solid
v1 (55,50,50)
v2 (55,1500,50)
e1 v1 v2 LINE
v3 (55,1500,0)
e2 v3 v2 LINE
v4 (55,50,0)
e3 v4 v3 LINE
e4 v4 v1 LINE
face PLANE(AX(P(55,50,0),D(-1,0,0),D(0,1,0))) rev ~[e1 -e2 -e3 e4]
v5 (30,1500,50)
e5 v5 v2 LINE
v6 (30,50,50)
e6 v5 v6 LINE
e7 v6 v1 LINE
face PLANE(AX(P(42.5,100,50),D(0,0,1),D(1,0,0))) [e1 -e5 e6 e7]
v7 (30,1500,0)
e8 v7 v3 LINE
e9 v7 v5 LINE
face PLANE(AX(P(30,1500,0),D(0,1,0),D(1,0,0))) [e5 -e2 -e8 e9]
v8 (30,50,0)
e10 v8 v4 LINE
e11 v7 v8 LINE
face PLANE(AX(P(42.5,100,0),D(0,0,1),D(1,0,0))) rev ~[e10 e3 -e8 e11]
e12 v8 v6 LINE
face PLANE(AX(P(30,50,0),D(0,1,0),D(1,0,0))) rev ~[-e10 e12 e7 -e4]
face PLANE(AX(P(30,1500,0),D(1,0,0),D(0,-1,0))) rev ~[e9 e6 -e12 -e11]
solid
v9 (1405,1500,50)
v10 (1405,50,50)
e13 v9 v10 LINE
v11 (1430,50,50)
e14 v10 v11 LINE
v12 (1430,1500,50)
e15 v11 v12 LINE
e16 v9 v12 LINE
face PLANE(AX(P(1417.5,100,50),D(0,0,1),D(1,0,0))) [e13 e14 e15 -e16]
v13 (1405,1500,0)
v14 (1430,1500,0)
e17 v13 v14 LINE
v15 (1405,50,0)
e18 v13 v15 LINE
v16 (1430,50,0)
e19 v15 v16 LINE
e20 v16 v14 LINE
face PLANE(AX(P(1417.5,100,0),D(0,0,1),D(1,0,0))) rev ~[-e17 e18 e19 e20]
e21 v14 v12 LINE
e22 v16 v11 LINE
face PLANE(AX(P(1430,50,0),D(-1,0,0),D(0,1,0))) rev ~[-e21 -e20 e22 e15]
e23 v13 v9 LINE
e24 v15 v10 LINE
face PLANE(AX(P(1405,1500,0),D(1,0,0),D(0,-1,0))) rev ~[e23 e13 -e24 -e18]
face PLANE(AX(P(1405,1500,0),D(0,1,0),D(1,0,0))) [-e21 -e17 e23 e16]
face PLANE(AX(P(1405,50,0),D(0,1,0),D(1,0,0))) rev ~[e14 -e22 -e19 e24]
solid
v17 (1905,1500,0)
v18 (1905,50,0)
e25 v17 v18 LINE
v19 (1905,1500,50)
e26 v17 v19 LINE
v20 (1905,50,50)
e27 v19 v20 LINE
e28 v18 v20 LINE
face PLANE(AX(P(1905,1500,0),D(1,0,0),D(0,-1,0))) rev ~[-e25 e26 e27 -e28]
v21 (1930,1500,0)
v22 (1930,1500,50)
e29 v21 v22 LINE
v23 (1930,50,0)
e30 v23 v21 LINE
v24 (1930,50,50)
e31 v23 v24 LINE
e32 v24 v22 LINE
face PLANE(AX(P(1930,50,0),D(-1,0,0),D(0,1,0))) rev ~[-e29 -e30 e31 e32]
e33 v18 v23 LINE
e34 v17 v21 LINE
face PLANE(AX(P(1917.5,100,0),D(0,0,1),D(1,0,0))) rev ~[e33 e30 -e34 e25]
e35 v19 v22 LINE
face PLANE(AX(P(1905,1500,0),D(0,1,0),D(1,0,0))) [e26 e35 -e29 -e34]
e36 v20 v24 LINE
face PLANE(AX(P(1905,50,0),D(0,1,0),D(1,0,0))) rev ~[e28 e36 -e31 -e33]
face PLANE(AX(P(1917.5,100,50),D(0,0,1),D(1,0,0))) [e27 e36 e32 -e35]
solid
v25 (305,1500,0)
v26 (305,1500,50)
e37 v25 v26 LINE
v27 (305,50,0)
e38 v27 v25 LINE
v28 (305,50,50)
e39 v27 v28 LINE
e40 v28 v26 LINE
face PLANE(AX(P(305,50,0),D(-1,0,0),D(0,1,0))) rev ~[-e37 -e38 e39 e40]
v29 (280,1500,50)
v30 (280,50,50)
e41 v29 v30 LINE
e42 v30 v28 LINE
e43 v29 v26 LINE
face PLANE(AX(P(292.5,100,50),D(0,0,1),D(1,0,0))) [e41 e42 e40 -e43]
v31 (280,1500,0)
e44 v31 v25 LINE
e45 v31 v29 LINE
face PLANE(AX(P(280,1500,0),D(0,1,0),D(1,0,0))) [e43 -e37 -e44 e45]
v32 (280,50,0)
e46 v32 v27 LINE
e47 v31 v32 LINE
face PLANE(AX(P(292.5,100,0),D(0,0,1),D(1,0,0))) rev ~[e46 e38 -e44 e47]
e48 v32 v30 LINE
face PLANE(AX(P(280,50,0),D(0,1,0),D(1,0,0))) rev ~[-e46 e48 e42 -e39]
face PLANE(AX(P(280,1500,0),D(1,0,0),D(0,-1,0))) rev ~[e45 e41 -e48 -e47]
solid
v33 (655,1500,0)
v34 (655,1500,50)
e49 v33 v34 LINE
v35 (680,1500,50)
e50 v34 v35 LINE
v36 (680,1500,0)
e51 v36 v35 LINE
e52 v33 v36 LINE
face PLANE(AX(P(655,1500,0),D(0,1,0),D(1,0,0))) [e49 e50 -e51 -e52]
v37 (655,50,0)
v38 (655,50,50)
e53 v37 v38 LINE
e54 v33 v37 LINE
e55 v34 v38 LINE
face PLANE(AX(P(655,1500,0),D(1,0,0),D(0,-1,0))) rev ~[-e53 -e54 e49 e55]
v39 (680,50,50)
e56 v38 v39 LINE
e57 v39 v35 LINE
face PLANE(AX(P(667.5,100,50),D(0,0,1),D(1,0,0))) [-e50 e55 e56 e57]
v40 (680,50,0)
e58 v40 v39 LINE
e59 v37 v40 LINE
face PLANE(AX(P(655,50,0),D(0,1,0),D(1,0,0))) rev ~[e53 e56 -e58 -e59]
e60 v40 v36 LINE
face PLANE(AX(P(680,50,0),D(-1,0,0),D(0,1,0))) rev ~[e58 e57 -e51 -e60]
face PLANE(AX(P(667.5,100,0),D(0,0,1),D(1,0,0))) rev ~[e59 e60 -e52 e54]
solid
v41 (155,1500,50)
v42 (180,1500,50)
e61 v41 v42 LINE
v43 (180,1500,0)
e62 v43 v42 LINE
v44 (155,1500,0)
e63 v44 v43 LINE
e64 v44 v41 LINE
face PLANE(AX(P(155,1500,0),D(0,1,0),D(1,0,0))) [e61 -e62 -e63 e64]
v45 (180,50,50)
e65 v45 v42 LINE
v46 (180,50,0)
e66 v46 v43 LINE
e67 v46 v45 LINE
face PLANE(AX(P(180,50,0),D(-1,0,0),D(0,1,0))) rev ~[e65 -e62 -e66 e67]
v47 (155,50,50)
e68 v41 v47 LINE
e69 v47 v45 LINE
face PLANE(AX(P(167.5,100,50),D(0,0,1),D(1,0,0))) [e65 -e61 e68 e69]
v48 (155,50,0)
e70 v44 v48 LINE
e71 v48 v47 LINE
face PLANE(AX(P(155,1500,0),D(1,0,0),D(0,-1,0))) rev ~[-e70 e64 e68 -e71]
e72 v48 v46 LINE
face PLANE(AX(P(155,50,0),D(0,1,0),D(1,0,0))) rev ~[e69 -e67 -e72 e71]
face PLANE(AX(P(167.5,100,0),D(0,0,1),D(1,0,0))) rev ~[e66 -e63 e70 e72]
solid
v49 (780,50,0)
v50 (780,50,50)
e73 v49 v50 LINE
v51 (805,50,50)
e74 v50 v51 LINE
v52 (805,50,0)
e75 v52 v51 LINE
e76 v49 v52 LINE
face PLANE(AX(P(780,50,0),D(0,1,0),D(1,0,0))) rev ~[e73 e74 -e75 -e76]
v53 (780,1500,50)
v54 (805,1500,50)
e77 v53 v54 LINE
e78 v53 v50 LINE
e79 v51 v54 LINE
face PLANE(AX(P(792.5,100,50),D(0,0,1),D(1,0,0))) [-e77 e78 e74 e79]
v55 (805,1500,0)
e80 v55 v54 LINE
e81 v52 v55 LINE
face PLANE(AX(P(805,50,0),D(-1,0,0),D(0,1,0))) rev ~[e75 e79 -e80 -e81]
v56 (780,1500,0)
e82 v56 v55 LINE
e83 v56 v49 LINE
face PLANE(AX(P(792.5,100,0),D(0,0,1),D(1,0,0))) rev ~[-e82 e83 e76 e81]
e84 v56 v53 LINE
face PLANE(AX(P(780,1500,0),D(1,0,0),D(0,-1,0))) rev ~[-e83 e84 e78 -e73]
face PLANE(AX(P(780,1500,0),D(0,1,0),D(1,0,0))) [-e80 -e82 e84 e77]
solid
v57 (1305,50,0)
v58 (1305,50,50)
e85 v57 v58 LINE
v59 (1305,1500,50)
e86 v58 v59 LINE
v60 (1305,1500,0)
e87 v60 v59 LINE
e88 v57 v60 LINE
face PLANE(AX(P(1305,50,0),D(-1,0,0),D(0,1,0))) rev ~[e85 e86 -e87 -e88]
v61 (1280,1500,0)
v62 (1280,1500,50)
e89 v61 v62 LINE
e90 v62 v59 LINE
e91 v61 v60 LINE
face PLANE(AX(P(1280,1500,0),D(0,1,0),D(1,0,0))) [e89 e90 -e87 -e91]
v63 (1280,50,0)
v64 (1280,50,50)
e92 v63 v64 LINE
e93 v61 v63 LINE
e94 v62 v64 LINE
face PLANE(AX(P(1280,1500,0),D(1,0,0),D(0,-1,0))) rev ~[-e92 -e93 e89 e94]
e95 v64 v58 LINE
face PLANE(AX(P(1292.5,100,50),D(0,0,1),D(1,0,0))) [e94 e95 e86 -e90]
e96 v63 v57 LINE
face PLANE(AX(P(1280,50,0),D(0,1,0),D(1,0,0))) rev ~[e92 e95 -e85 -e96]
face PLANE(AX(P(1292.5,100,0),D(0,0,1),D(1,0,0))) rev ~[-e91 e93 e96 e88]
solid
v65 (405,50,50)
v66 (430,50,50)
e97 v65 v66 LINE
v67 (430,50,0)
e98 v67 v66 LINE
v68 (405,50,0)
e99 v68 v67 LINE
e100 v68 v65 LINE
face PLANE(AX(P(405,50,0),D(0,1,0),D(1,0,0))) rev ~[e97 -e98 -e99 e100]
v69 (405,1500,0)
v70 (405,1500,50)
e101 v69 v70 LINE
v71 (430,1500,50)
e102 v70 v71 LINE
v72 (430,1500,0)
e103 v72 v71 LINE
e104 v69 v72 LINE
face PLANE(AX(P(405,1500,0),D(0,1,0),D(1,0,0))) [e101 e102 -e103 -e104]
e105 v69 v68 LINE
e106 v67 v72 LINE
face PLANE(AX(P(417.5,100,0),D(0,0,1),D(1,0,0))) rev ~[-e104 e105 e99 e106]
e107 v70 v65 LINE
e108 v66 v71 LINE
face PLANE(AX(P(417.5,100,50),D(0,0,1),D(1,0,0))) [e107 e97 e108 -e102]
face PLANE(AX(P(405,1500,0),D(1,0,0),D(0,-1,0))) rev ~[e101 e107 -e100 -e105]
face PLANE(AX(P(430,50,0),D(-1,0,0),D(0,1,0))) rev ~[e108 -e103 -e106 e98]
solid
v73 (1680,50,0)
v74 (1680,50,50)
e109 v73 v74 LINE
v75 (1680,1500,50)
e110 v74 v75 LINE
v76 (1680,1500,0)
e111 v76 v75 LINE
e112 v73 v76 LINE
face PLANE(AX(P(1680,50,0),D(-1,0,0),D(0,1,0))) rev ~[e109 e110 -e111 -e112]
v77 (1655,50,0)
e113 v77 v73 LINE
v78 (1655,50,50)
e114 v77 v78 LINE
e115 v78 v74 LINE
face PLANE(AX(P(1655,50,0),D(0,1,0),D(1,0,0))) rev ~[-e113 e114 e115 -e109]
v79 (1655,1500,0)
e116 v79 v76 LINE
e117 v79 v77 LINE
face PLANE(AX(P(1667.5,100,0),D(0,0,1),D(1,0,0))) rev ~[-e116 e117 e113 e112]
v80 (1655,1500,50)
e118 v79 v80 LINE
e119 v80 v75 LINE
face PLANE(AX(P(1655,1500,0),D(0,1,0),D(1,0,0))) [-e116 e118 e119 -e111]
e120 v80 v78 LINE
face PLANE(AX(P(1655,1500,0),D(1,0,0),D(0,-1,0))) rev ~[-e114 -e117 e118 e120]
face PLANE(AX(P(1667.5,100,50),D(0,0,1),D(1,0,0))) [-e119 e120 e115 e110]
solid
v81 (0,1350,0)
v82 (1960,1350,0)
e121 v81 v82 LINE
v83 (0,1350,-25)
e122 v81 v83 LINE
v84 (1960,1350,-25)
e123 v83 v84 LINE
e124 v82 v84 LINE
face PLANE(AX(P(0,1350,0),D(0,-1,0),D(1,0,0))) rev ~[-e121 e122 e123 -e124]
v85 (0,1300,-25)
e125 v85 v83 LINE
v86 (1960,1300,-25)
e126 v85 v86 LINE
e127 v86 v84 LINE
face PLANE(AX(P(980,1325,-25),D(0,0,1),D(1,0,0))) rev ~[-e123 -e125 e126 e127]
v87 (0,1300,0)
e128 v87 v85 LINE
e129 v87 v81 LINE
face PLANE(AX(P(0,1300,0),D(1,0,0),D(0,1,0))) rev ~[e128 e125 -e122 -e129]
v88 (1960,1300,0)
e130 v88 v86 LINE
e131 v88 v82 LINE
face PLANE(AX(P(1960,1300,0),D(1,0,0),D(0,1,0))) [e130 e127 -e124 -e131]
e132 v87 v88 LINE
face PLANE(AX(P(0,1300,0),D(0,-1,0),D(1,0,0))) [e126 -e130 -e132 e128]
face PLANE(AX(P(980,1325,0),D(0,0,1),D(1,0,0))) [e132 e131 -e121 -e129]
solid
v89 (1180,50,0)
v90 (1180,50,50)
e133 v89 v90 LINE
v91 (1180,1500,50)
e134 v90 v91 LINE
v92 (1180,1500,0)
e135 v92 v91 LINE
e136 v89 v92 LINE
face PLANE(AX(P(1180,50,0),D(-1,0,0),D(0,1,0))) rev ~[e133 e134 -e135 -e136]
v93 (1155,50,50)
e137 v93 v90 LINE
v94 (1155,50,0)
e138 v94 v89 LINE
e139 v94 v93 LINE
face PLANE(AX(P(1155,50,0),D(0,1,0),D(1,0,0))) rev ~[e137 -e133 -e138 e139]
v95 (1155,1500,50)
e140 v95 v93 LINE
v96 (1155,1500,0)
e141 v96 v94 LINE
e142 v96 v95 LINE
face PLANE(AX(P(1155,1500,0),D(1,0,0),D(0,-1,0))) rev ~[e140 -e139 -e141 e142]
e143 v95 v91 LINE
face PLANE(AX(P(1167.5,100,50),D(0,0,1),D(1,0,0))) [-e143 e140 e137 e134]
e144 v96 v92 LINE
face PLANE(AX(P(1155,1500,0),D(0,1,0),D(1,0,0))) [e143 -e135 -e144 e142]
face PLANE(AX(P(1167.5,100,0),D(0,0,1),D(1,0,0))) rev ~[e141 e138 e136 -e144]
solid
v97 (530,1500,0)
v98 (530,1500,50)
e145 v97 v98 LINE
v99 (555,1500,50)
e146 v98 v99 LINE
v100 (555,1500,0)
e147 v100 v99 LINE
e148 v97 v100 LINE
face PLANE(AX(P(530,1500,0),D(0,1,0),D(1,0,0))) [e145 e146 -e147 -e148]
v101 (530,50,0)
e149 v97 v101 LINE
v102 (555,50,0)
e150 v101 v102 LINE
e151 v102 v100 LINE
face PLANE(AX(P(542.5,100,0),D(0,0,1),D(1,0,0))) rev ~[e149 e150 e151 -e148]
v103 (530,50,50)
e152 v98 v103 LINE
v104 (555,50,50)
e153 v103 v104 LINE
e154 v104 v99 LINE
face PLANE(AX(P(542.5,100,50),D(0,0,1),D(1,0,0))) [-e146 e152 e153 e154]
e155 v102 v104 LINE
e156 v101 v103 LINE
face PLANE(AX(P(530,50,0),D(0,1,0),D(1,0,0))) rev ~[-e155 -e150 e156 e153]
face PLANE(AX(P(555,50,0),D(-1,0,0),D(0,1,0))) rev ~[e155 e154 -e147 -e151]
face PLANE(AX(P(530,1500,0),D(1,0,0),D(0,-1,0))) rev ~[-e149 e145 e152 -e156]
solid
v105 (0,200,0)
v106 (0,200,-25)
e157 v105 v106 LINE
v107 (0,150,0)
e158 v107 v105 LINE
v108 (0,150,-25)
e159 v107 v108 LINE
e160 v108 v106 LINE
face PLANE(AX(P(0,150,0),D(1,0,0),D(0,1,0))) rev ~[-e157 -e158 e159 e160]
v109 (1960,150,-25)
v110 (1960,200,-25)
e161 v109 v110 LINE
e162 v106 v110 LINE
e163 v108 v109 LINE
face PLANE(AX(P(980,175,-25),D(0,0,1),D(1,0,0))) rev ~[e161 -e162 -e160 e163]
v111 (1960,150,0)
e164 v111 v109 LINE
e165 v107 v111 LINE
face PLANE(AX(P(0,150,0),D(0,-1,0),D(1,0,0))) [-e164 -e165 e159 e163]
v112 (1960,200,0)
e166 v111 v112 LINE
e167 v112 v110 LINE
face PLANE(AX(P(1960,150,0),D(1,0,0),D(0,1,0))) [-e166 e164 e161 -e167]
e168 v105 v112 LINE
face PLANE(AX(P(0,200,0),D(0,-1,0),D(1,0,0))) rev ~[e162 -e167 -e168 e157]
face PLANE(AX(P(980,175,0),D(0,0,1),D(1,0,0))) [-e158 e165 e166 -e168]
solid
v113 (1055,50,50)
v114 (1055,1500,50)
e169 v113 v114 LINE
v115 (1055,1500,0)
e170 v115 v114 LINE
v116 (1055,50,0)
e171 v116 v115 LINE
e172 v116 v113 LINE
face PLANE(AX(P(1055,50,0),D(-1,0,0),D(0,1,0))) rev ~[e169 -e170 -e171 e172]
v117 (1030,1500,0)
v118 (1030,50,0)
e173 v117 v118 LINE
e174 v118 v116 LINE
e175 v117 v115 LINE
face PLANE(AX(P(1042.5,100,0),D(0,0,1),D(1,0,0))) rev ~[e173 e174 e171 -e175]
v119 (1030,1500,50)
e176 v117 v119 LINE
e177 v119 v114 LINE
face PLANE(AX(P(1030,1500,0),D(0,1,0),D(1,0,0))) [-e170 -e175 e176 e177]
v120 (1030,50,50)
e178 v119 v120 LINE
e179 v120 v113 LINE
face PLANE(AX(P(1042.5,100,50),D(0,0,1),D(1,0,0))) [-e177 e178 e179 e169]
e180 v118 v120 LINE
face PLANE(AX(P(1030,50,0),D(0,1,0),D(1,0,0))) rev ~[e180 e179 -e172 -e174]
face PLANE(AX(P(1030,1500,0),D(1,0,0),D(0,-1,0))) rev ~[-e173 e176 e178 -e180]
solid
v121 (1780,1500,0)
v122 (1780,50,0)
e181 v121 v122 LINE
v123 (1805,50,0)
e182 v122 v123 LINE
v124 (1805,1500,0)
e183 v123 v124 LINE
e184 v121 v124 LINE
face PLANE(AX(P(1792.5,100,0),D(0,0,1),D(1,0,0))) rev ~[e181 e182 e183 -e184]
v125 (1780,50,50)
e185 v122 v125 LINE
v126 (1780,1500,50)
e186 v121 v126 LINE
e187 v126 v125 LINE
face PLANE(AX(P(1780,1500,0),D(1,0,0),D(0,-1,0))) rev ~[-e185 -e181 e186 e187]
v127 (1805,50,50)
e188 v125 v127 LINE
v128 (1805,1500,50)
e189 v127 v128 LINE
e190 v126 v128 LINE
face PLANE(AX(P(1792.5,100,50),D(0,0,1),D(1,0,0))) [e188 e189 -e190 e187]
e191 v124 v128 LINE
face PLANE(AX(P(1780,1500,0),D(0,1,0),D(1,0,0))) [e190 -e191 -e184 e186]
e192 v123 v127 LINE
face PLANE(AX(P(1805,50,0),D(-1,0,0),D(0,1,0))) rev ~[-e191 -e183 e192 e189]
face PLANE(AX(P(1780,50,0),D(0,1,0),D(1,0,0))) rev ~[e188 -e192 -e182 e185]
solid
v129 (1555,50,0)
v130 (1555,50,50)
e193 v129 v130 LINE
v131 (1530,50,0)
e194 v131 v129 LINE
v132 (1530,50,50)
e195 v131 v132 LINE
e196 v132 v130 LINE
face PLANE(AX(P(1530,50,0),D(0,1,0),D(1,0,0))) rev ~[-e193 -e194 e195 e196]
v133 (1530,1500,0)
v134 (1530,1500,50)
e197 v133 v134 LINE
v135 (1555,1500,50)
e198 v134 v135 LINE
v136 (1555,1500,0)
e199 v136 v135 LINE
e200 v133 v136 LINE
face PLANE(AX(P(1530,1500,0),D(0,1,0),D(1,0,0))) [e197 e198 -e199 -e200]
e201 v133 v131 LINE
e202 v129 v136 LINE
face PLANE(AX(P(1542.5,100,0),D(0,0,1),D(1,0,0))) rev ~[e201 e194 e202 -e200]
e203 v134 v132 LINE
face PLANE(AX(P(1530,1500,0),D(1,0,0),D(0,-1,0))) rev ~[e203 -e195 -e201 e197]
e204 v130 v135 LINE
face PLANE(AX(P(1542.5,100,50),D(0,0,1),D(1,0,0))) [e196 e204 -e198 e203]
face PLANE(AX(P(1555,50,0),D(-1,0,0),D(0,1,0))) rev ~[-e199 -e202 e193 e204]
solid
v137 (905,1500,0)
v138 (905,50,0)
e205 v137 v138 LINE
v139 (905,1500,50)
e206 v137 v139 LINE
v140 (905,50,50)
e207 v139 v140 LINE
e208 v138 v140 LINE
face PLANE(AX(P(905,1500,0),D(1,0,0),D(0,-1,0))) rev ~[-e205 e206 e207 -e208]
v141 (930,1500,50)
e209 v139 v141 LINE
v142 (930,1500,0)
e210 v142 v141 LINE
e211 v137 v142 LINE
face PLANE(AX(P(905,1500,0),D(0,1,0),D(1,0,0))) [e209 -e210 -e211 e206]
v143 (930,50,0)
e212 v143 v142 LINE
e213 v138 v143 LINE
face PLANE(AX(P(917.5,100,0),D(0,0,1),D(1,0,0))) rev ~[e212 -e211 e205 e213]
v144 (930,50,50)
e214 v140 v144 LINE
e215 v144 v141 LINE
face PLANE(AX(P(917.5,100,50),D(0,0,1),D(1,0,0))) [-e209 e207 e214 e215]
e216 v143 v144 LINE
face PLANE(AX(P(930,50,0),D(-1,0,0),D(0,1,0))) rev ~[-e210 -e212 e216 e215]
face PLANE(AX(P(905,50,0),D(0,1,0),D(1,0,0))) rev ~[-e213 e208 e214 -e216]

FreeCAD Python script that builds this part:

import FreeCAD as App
import Part
import Sketcher

V = App.Vector

doc = App.newDocument("Part")
body = doc.addObject("PartDesign::Body", "Body")

# Sketch on XY plane
sketch1 = doc.addObject("Sketcher::SketchObject", "Sketch")
body.addObject(sketch1)
sketch1.AttachmentSupport = (doc.XY_Plane, [""])
sketch1.MapMode = "FlatFace"
sketch1.addGeometry([
    Part.LineSegment(V(30, 50, 0), V(55, 50, 0)),
    Part.LineSegment(V(55, 50, 0), V(55, 1500, 0)),
    Part.LineSegment(V(55, 1500, 0), V(30, 1500, 0)),
    Part.LineSegment(V(30, 1500, 0), V(30, 50, 0)),
], False)
sketch1.addConstraint([
    Sketcher.Constraint("Coincident", 0, 2, 1, 1),
    Sketcher.Constraint("Coincident", 1, 2, 2, 1),
    Sketcher.Constraint("Coincident", 2, 2, 3, 1),
    Sketcher.Constraint("Coincident", 3, 2, 0, 1),
    Sketcher.Constraint("Horizontal", 0),
    Sketcher.Constraint("Vertical", 1),
    Sketcher.Constraint("Horizontal", 2),
    Sketcher.Constraint("Vertical", 3),
    Sketcher.Constraint("DistanceX", 0, 1, 0, 2, 25.0),
    Sketcher.Constraint("DistanceY", 1, 1, 1, 2, 1450.0),
    Sketcher.Constraint("DistanceX", -1, 1, 0, 2, 55.0),
    Sketcher.Constraint("DistanceY", -1, 1, 0, 2, 50.0),
])
pad1 = doc.addObject("PartDesign::Pad", "Pad")
body.addObject(pad1)
pad1.Profile = sketch1
pad1.Length = 50
body2 = doc.addObject("PartDesign::Body", "Body001")

# Sketch on XY plane
sketch2 = doc.addObject("Sketcher::SketchObject", "Sketch001")
body2.addObject(sketch2)
sketch2.AttachmentSupport = (doc.getObject("XY_Plane001"), [""])
sketch2.MapMode = "FlatFace"
sketch2.addGeometry([
    Part.LineSegment(V(155, 50, 0), V(180, 50, 0)),
    Part.LineSegment(V(180, 50, 0), V(180, 1500, 0)),
    Part.LineSegment(V(180, 1500, 0), V(155, 1500, 0)),
    Part.LineSegment(V(155, 1500, 0), V(155, 50, 0)),
], False)
sketch2.addConstraint([
    Sketcher.Constraint("Coincident", 0, 2, 1, 1),
    Sketcher.Constraint("Coincident", 1, 2, 2, 1),
    Sketcher.Constraint("Coincident", 2, 2, 3, 1),
    Sketcher.Constraint("Coincident", 3, 2, 0, 1),
    Sketcher.Constraint("Horizontal", 0),
    Sketcher.Constraint("Vertical", 1),
    Sketcher.Constraint("Horizontal", 2),
    Sketcher.Constraint("Vertical", 3),
    Sketcher.Constraint("DistanceX", 0, 1, 0, 2, 25.0),
    Sketcher.Constraint("DistanceY", 1, 1, 1, 2, 1450.0),
    Sketcher.Constraint("DistanceX", -1, 1, 0, 2, 180.0),
    Sketcher.Constraint("DistanceY", -1, 1, 0, 2, 50.0),
])
pad2 = doc.addObject("PartDesign::Pad", "Pad001")
body2.addObject(pad2)
pad2.Profile = sketch2
pad2.Length = 50
body3 = doc.addObject("PartDesign::Body", "Body002")

# Sketch on XY plane
sketch3 = doc.addObject("Sketcher::SketchObject", "Sketch002")
body3.addObject(sketch3)
sketch3.AttachmentSupport = (doc.getObject("XY_Plane002"), [""])
sketch3.MapMode = "FlatFace"
sketch3.addGeometry([
    Part.LineSegment(V(280, 50, 0), V(305, 50, 0)),
    Part.LineSegment(V(305, 50, 0), V(305, 1500, 0)),
    Part.LineSegment(V(305, 1500, 0), V(280, 1500, 0)),
    Part.LineSegment(V(280, 1500, 0), V(280, 50, 0)),
], False)
sketch3.addConstraint([
    Sketcher.Constraint("Coincident", 0, 2, 1, 1),
    Sketcher.Constraint("Coincident", 1, 2, 2, 1),
    Sketcher.Constraint("Coincident", 2, 2, 3, 1),
    Sketcher.Constraint("Coincident", 3, 2, 0, 1),
    Sketcher.Constraint("Horizontal", 0),
    Sketcher.Constraint("Vertical", 1),
    Sketcher.Constraint("Horizontal", 2),
    Sketcher.Constraint("Vertical", 3),
    Sketcher.Constraint("DistanceX", 0, 1, 0, 2, 25.0),
    Sketcher.Constraint("DistanceY", 1, 1, 1, 2, 1450.0),
    Sketcher.Constraint("DistanceX", -1, 1, 0, 2, 305.0),
    Sketcher.Constraint("DistanceY", -1, 1, 0, 2, 50.0),
])
pad3 = doc.addObject("PartDesign::Pad", "Pad002")
body3.addObject(pad3)
pad3.Profile = sketch3
pad3.Length = 50
body4 = doc.addObject("PartDesign::Body", "Body003")

# Sketch on XY plane
sketch4 = doc.addObject("Sketcher::SketchObject", "Sketch003")
body4.addObject(sketch4)
sketch4.AttachmentSupport = (doc.getObject("XY_Plane003"), [""])
sketch4.MapMode = "FlatFace"
sketch4.addGeometry([
    Part.LineSegment(V(405, 50, 0), V(430, 50, 0)),
    Part.LineSegment(V(430, 50, 0), V(430, 1500, 0)),
    Part.LineSegment(V(430, 1500, 0), V(405, 1500, 0)),
    Part.LineSegment(V(405, 1500, 0), V(405, 50, 0)),
], False)
sketch4.addConstraint([
    Sketcher.Constraint("Coincident", 0, 2, 1, 1),
    Sketcher.Constraint("Coincident", 1, 2, 2, 1),
    Sketcher.Constraint("Coincident", 2, 2, 3, 1),
    Sketcher.Constraint("Coincident", 3, 2, 0, 1),
    Sketcher.Constraint("Horizontal", 0),
    Sketcher.Constraint("Vertical", 1),
    Sketcher.Constraint("Horizontal", 2),
    Sketcher.Constraint("Vertical", 3),
    Sketcher.Constraint("DistanceX", 0, 1, 0, 2, 25.0),
    Sketcher.Constraint("DistanceY", 1, 1, 1, 2, 1450.0),
    Sketcher.Constraint("DistanceX", -1, 1, 0, 2, 430.0),
    Sketcher.Constraint("DistanceY", -1, 1, 0, 2, 50.0),
])
pad4 = doc.addObject("PartDesign::Pad", "Pad003")
body4.addObject(pad4)
pad4.Profile = sketch4
pad4.Length = 50
body5 = doc.addObject("PartDesign::Body", "Body004")

# Sketch on XY plane
sketch5 = doc.addObject("Sketcher::SketchObject", "Sketch004")
body5.addObject(sketch5)
sketch5.AttachmentSupport = (doc.getObject("XY_Plane004"), [""])
sketch5.MapMode = "FlatFace"
sketch5.addGeometry([
    Part.LineSegment(V(530, 50, 0), V(555, 50, 0)),
    Part.LineSegment(V(555, 50, 0), V(555, 1500, 0)),
    Part.LineSegment(V(555, 1500, 0), V(530, 1500, 0)),
    Part.LineSegment(V(530, 1500, 0), V(530, 50, 0)),
], False)
sketch5.addConstraint([
    Sketcher.Constraint("Coincident", 0, 2, 1, 1),
    Sketcher.Constraint("Coincident", 1, 2, 2, 1),
    Sketcher.Constraint("Coincident", 2, 2, 3, 1),
    Sketcher.Constraint("Coincident", 3, 2, 0, 1),
    Sketcher.Constraint("Horizontal", 0),
    Sketcher.Constraint("Vertical", 1),
    Sketcher.Constraint("Horizontal", 2),
    Sketcher.Constraint("Vertical", 3),
    Sketcher.Constraint("DistanceX", 0, 1, 0, 2, 25.0),
    Sketcher.Constraint("DistanceY", 1, 1, 1, 2, 1450.0),
    Sketcher.Constraint("DistanceX", -1, 1, 0, 2, 555.0),
    Sketcher.Constraint("DistanceY", -1, 1, 0, 2, 50.0),
])
pad5 = doc.addObject("PartDesign::Pad", "Pad004")
body5.addObject(pad5)
pad5.Profile = sketch5
pad5.Length = 50
body6 = doc.addObject("PartDesign::Body", "Body005")

# Sketch on XY plane
sketch6 = doc.addObject("Sketcher::SketchObject", "Sketch005")
body6.addObject(sketch6)
sketch6.AttachmentSupport = (doc.getObject("XY_Plane005"), [""])
sketch6.MapMode = "FlatFace"
sketch6.addGeometry([
    Part.LineSegment(V(655, 50, 0), V(680, 50, 0)),
    Part.LineSegment(V(680, 50, 0), V(680, 1500, 0)),
    Part.LineSegment(V(680, 1500, 0), V(655, 1500, 0)),
    Part.LineSegment(V(655, 1500, 0), V(655, 50, 0)),
], False)
sketch6.addConstraint([
    Sketcher.Constraint("Coincident", 0, 2, 1, 1),
    Sketcher.Constraint("Coincident", 1, 2, 2, 1),
    Sketcher.Constraint("Coincident", 2, 2, 3, 1),
    Sketcher.Constraint("Coincident", 3, 2, 0, 1),
    Sketcher.Constraint("Horizontal", 0),
    Sketcher.Constraint("Vertical", 1),
    Sketcher.Constraint("Horizontal", 2),
    Sketcher.Constraint("Vertical", 3),
    Sketcher.Constraint("DistanceX", 0, 1, 0, 2, 25.0),
    Sketcher.Constraint("DistanceY", 1, 1, 1, 2, 1450.0),
    Sketcher.Constraint("DistanceX", -1, 1, 0, 2, 680.0),
    Sketcher.Constraint("DistanceY", -1, 1, 0, 2, 50.0),
])
pad6 = doc.addObject("PartDesign::Pad", "Pad005")
body6.addObject(pad6)
pad6.Profile = sketch6
pad6.Length = 50
body7 = doc.addObject("PartDesign::Body", "Body006")

# Sketch on XY plane
sketch7 = doc.addObject("Sketcher::SketchObject", "Sketch006")
body7.addObject(sketch7)
sketch7.AttachmentSupport = (doc.getObject("XY_Plane006"), [""])
sketch7.MapMode = "FlatFace"
sketch7.addGeometry([
    Part.LineSegment(V(780, 50, 0), V(805, 50, 0)),
    Part.LineSegment(V(805, 50, 0), V(805, 1500, 0)),
    Part.LineSegment(V(805, 1500, 0), V(780, 1500, 0)),
    Part.LineSegment(V(780, 1500, 0), V(780, 50, 0)),
], False)
sketch7.addConstraint([
    Sketcher.Constraint("Coincident", 0, 2, 1, 1),
    Sketcher.Constraint("Coincident", 1, 2, 2, 1),
    Sketcher.Constraint("Coincident", 2, 2, 3, 1),
    Sketcher.Constraint("Coincident", 3, 2, 0, 1),
    Sketcher.Constraint("Horizontal", 0),
    Sketcher.Constraint("Vertical", 1),
    Sketcher.Constraint("Horizontal", 2),
    Sketcher.Constraint("Vertical", 3),
    Sketcher.Constraint("DistanceX", 0, 1, 0, 2, 25.0),
    Sketcher.Constraint("DistanceY", 1, 1, 1, 2, 1450.0),
    Sketcher.Constraint("DistanceX", -1, 1, 0, 2, 805.0),
    Sketcher.Constraint("DistanceY", -1, 1, 0, 2, 50.0),
])
pad7 = doc.addObject("PartDesign::Pad", "Pad006")
body7.addObject(pad7)
pad7.Profile = sketch7
pad7.Length = 50
body8 = doc.addObject("PartDesign::Body", "Body007")

# Sketch on XY plane
sketch8 = doc.addObject("Sketcher::SketchObject", "Sketch007")
body8.addObject(sketch8)
sketch8.AttachmentSupport = (doc.getObject("XY_Plane007"), [""])
sketch8.MapMode = "FlatFace"
sketch8.addGeometry([
    Part.LineSegment(V(905, 50, 0), V(930, 50, 0)),
    Part.LineSegment(V(930, 50, 0), V(930, 1500, 0)),
    Part.LineSegment(V(930, 1500, 0), V(905, 1500, 0)),
    Part.LineSegment(V(905, 1500, 0), V(905, 50, 0)),
], False)
sketch8.addConstraint([
    Sketcher.Constraint("Coincident", 0, 2, 1, 1),
    Sketcher.Constraint("Coincident", 1, 2, 2, 1),
    Sketcher.Constraint("Coincident", 2, 2, 3, 1),
    Sketcher.Constraint("Coincident", 3, 2, 0, 1),
    Sketcher.Constraint("Horizontal", 0),
    Sketcher.Constraint("Vertical", 1),
    Sketcher.Constraint("Horizontal", 2),
    Sketcher.Constraint("Vertical", 3),
    Sketcher.Constraint("DistanceX", 0, 1, 0, 2, 25.0),
    Sketcher.Constraint("DistanceY", 1, 1, 1, 2, 1450.0),
    Sketcher.Constraint("DistanceX", -1, 1, 0, 2, 930.0),
    Sketcher.Constraint("DistanceY", -1, 1, 0, 2, 50.0),
])
pad8 = doc.addObject("PartDesign::Pad", "Pad007")
body8.addObject(pad8)
pad8.Profile = sketch8
pad8.Length = 50
body9 = doc.addObject("PartDesign::Body", "Body008")

# Sketch on XY plane
sketch9 = doc.addObject("Sketcher::SketchObject", "Sketch008")
body9.addObject(sketch9)
sketch9.AttachmentSupport = (doc.getObject("XY_Plane008"), [""])
sketch9.MapMode = "FlatFace"
sketch9.addGeometry([
    Part.LineSegment(V(1030, 50, 0), V(1055, 50, 0)),
    Part.LineSegment(V(1055, 50, 0), V(1055, 1500, 0)),
    Part.LineSegment(V(1055, 1500, 0), V(1030, 1500, 0)),
    Part.LineSegment(V(1030, 1500, 0), V(1030, 50, 0)),
], False)
sketch9.addConstraint([
    Sketcher.Constraint("Coincident", 0, 2, 1, 1),
    Sketcher.Constraint("Coincident", 1, 2, 2, 1),
    Sketcher.Constraint("Coincident", 2, 2, 3, 1),
    Sketcher.Constraint("Coincident", 3, 2, 0, 1),
    Sketcher.Constraint("Horizontal", 0),
    Sketcher.Constraint("Vertical", 1),
    Sketcher.Constraint("Horizontal", 2),
    Sketcher.Constraint("Vertical", 3),
    Sketcher.Constraint("DistanceX", 0, 1, 0, 2, 25.0),
    Sketcher.Constraint("DistanceY", 1, 1, 1, 2, 1450.0),
    Sketcher.Constraint("DistanceX", -1, 1, 0, 2, 1055.0),
    Sketcher.Constraint("DistanceY", -1, 1, 0, 2, 50.0),
])
pad9 = doc.addObject("PartDesign::Pad", "Pad008")
body9.addObject(pad9)
pad9.Profile = sketch9
pad9.Length = 50
body10 = doc.addObject("PartDesign::Body", "Body009")

# Sketch on XY plane
sketch10 = doc.addObject("Sketcher::SketchObject", "Sketch009")
body10.addObject(sketch10)
sketch10.AttachmentSupport = (doc.getObject("XY_Plane009"), [""])
sketch10.MapMode = "FlatFace"
sketch10.addGeometry([
    Part.LineSegment(V(1155, 50, 0), V(1180, 50, 0)),
    Part.LineSegment(V(1180, 50, 0), V(1180, 1500, 0)),
    Part.LineSegment(V(1180, 1500, 0), V(1155, 1500, 0)),
    Part.LineSegment(V(1155, 1500, 0), V(1155, 50, 0)),
], False)
sketch10.addConstraint([
    Sketcher.Constraint("Coincident", 0, 2, 1, 1),
    Sketcher.Constraint("Coincident", 1, 2, 2, 1),
    Sketcher.Constraint("Coincident", 2, 2, 3, 1),
    Sketcher.Constraint("Coincident", 3, 2, 0, 1),
    Sketcher.Constraint("Horizontal", 0),
    Sketcher.Constraint("Vertical", 1),
    Sketcher.Constraint("Horizontal", 2),
    Sketcher.Constraint("Vertical", 3),
    Sketcher.Constraint("DistanceX", 0, 1, 0, 2, 25.0),
    Sketcher.Constraint("DistanceY", 1, 1, 1, 2, 1450.0),
    Sketcher.Constraint("DistanceX", -1, 1, 0, 2, 1180.0),
    Sketcher.Constraint("DistanceY", -1, 1, 0, 2, 50.0),
])
pad10 = doc.addObject("PartDesign::Pad", "Pad009")
body10.addObject(pad10)
pad10.Profile = sketch10
pad10.Length = 50
body11 = doc.addObject("PartDesign::Body", "Body010")

# Sketch on XY plane
sketch11 = doc.addObject("Sketcher::SketchObject", "Sketch010")
body11.addObject(sketch11)
sketch11.AttachmentSupport = (doc.getObject("XY_Plane010"), [""])
sketch11.MapMode = "FlatFace"
sketch11.addGeometry([
    Part.LineSegment(V(1280, 50, 0), V(1305, 50, 0)),
    Part.LineSegment(V(1305, 50, 0), V(1305, 1500, 0)),
    Part.LineSegment(V(1305, 1500, 0), V(1280, 1500, 0)),
    Part.LineSegment(V(1280, 1500, 0), V(1280, 50, 0)),
], False)
sketch11.addConstraint([
    Sketcher.Constraint("Coincident", 0, 2, 1, 1),
    Sketcher.Constraint("Coincident", 1, 2, 2, 1),
    Sketcher.Constraint("Coincident", 2, 2, 3, 1),
    Sketcher.Constraint("Coincident", 3, 2, 0, 1),
    Sketcher.Constraint("Horizontal", 0),
    Sketcher.Constraint("Vertical", 1),
    Sketcher.Constraint("Horizontal", 2),
    Sketcher.Constraint("Vertical", 3),
    Sketcher.Constraint("DistanceX", 0, 1, 0, 2, 25.0),
    Sketcher.Constraint("DistanceY", 1, 1, 1, 2, 1450.0),
    Sketcher.Constraint("DistanceX", -1, 1, 0, 2, 1305.0),
    Sketcher.Constraint("DistanceY", -1, 1, 0, 2, 50.0),
])
pad11 = doc.addObject("PartDesign::Pad", "Pad010")
body11.addObject(pad11)
pad11.Profile = sketch11
pad11.Length = 50
body12 = doc.addObject("PartDesign::Body", "Body011")

# Sketch on XY plane
sketch12 = doc.addObject("Sketcher::SketchObject", "Sketch011")
body12.addObject(sketch12)
sketch12.AttachmentSupport = (doc.getObject("XY_Plane011"), [""])
sketch12.MapMode = "FlatFace"
sketch12.addGeometry([
    Part.LineSegment(V(1405, 50, 0), V(1430, 50, 0)),
    Part.LineSegment(V(1430, 50, 0), V(1430, 1500, 0)),
    Part.LineSegment(V(1430, 1500, 0), V(1405, 1500, 0)),
    Part.LineSegment(V(1405, 1500, 0), V(1405, 50, 0)),
], False)
sketch12.addConstraint([
    Sketcher.Constraint("Coincident", 0, 2, 1, 1),
    Sketcher.Constraint("Coincident", 1, 2, 2, 1),
    Sketcher.Constraint("Coincident", 2, 2, 3, 1),
    Sketcher.Constraint("Coincident", 3, 2, 0, 1),
    Sketcher.Constraint("Horizontal", 0),
    Sketcher.Constraint("Vertical", 1),
    Sketcher.Constraint("Horizontal", 2),
    Sketcher.Constraint("Vertical", 3),
    Sketcher.Constraint("DistanceX", 0, 1, 0, 2, 25.0),
    Sketcher.Constraint("DistanceY", 1, 1, 1, 2, 1450.0),
    Sketcher.Constraint("DistanceX", -1, 1, 0, 2, 1430.0),
    Sketcher.Constraint("DistanceY", -1, 1, 0, 2, 50.0),
])
pad12 = doc.addObject("PartDesign::Pad", "Pad011")
body12.addObject(pad12)
pad12.Profile = sketch12
pad12.Length = 50
body13 = doc.addObject("PartDesign::Body", "Body012")

# Sketch on XY plane
sketch13 = doc.addObject("Sketcher::SketchObject", "Sketch012")
body13.addObject(sketch13)
sketch13.AttachmentSupport = (doc.getObject("XY_Plane012"), [""])
sketch13.MapMode = "FlatFace"
sketch13.addGeometry([
    Part.LineSegment(V(1530, 50, 0), V(1555, 50, 0)),
    Part.LineSegment(V(1555, 50, 0), V(1555, 1500, 0)),
    Part.LineSegment(V(1555, 1500, 0), V(1530, 1500, 0)),
    Part.LineSegment(V(1530, 1500, 0), V(1530, 50, 0)),
], False)
sketch13.addConstraint([
    Sketcher.Constraint("Coincident", 0, 2, 1, 1),
    Sketcher.Constraint("Coincident", 1, 2, 2, 1),
    Sketcher.Constraint("Coincident", 2, 2, 3, 1),
    Sketcher.Constraint("Coincident", 3, 2, 0, 1),
    Sketcher.Constraint("Horizontal", 0),
    Sketcher.Constraint("Vertical", 1),
    Sketcher.Constraint("Horizontal", 2),
    Sketcher.Constraint("Vertical", 3),
    Sketcher.Constraint("DistanceX", 0, 1, 0, 2, 25.0),
    Sketcher.Constraint("DistanceY", 1, 1, 1, 2, 1450.0),
    Sketcher.Constraint("DistanceX", -1, 1, 0, 2, 1555.0),
    Sketcher.Constraint("DistanceY", -1, 1, 0, 2, 50.0),
])
pad13 = doc.addObject("PartDesign::Pad", "Pad012")
body13.addObject(pad13)
pad13.Profile = sketch13
pad13.Length = 50
body14 = doc.addObject("PartDesign::Body", "Body013")

# Sketch on XY plane
sketch14 = doc.addObject("Sketcher::SketchObject", "Sketch013")
body14.addObject(sketch14)
sketch14.AttachmentSupport = (doc.getObject("XY_Plane013"), [""])
sketch14.MapMode = "FlatFace"
sketch14.addGeometry([
    Part.LineSegment(V(1655, 50, 0), V(1680, 50, 0)),
    Part.LineSegment(V(1680, 50, 0), V(1680, 1500, 0)),
    Part.LineSegment(V(1680, 1500, 0), V(1655, 1500, 0)),
    Part.LineSegment(V(1655, 1500, 0), V(1655, 50, 0)),
], False)
sketch14.addConstraint([
    Sketcher.Constraint("Coincident", 0, 2, 1, 1),
    Sketcher.Constraint("Coincident", 1, 2, 2, 1),
    Sketcher.Constraint("Coincident", 2, 2, 3, 1),
    Sketcher.Constraint("Coincident", 3, 2, 0, 1),
    Sketcher.Constraint("Horizontal", 0),
    Sketcher.Constraint("Vertical", 1),
    Sketcher.Constraint("Horizontal", 2),
    Sketcher.Constraint("Vertical", 3),
    Sketcher.Constraint("DistanceX", 0, 1, 0, 2, 25.0),
    Sketcher.Constraint("DistanceY", 1, 1, 1, 2, 1450.0),
    Sketcher.Constraint("DistanceX", -1, 1, 0, 2, 1680.0),
    Sketcher.Constraint("DistanceY", -1, 1, 0, 2, 50.0),
])
pad14 = doc.addObject("PartDesign::Pad", "Pad013")
body14.addObject(pad14)
pad14.Profile = sketch14
pad14.Length = 50
body15 = doc.addObject("PartDesign::Body", "Body014")

# Sketch on XY plane
sketch15 = doc.addObject("Sketcher::SketchObject", "Sketch014")
body15.addObject(sketch15)
sketch15.AttachmentSupport = (doc.getObject("XY_Plane014"), [""])
sketch15.MapMode = "FlatFace"
sketch15.addGeometry([
    Part.LineSegment(V(1780, 50, 0), V(1805, 50, 0)),
    Part.LineSegment(V(1805, 50, 0), V(1805, 1500, 0)),
    Part.LineSegment(V(1805, 1500, 0), V(1780, 1500, 0)),
    Part.LineSegment(V(1780, 1500, 0), V(1780, 50, 0)),
], False)
sketch15.addConstraint([
    Sketcher.Constraint("Coincident", 0, 2, 1, 1),
    Sketcher.Constraint("Coincident", 1, 2, 2, 1),
    Sketcher.Constraint("Coincident", 2, 2, 3, 1),
    Sketcher.Constraint("Coincident", 3, 2, 0, 1),
    Sketcher.Constraint("Horizontal", 0),
    Sketcher.Constraint("Vertical", 1),
    Sketcher.Constraint("Horizontal", 2),
    Sketcher.Constraint("Vertical", 3),
    Sketcher.Constraint("DistanceX", 0, 1, 0, 2, 25.0),
    Sketcher.Constraint("DistanceY", 1, 1, 1, 2, 1450.0),
    Sketcher.Constraint("DistanceX", -1, 1, 0, 2, 1805.0),
    Sketcher.Constraint("DistanceY", -1, 1, 0, 2, 50.0),
])
pad15 = doc.addObject("PartDesign::Pad", "Pad014")
body15.addObject(pad15)
pad15.Profile = sketch15
pad15.Length = 50
body16 = doc.addObject("PartDesign::Body", "Body015")

# Sketch on XY plane
sketch16 = doc.addObject("Sketcher::SketchObject", "Sketch015")
body16.addObject(sketch16)
sketch16.AttachmentSupport = (doc.getObject("XY_Plane015"), [""])
sketch16.MapMode = "FlatFace"
sketch16.addGeometry([
    Part.LineSegment(V(1905, 50, 0), V(1930, 50, 0)),
    Part.LineSegment(V(1930, 50, 0), V(1930, 1500, 0)),
    Part.LineSegment(V(1930, 1500, 0), V(1905, 1500, 0)),
    Part.LineSegment(V(1905, 1500, 0), V(1905, 50, 0)),
], False)
sketch16.addConstraint([
    Sketcher.Constraint("Coincident", 0, 2, 1, 1),
    Sketcher.Constraint("Coincident", 1, 2, 2, 1),
    Sketcher.Constraint("Coincident", 2, 2, 3, 1),
    Sketcher.Constraint("Coincident", 3, 2, 0, 1),
    Sketcher.Constraint("Horizontal", 0),
    Sketcher.Constraint("Vertical", 1),
    Sketcher.Constraint("Horizontal", 2),
    Sketcher.Constraint("Vertical", 3),
    Sketcher.Constraint("DistanceX", 0, 1, 0, 2, 25.0),
    Sketcher.Constraint("DistanceY", 1, 1, 1, 2, 1450.0),
    Sketcher.Constraint("DistanceX", -1, 1, 0, 2, 1930.0),
    Sketcher.Constraint("DistanceY", -1, 1, 0, 2, 50.0),
])
pad16 = doc.addObject("PartDesign::Pad", "Pad015")
body16.addObject(pad16)
pad16.Profile = sketch16
pad16.Length = 50
body17 = doc.addObject("PartDesign::Body", "Body016")

# Sketch on XY plane
sketch17 = doc.addObject("Sketcher::SketchObject", "Sketch016")
body17.addObject(sketch17)
sketch17.AttachmentSupport = (doc.getObject("XY_Plane016"), [""])
sketch17.MapMode = "FlatFace"
sketch17.addGeometry([
    Part.LineSegment(V(0, 200, 0), V(0, 150, 0)),
    Part.LineSegment(V(0, 150, 0), V(1960, 150, 0)),
    Part.LineSegment(V(1960, 150, 0), V(1960, 200, 0)),
    Part.LineSegment(V(1960, 200, 0), V(0, 200, 0)),
], False)
sketch17.addConstraint([
    Sketcher.Constraint("Coincident", 0, 2, 1, 1),
    Sketcher.Constraint("Coincident", 1, 2, 2, 1),
    Sketcher.Constraint("Coincident", 2, 2, 3, 1),
    Sketcher.Constraint("Coincident", 3, 2, 0, 1),
    Sketcher.Constraint("Vertical", 0),
    Sketcher.Constraint("Horizontal", 1),
    Sketcher.Constraint("Vertical", 2),
    Sketcher.Constraint("Horizontal", 3),
    Sketcher.Constraint("PointOnObject", 0, 2, -2),
    Sketcher.Constraint("DistanceX", 1, 1, 1, 2, 1960.0),
    Sketcher.Constraint("DistanceY", 0, 2, 0, 1, 50.0),
    Sketcher.Constraint("DistanceY", -1, 1, 0, 2, 150.0),
])
pad17 = doc.addObject("PartDesign::Pad", "Pad016")
body17.addObject(pad17)
pad17.Profile = sketch17
pad17.Length = 25
pad17.Reversed = True
body18 = doc.addObject("PartDesign::Body", "Body017")

# Sketch on XY plane
sketch18 = doc.addObject("Sketcher::SketchObject", "Sketch017")
body18.addObject(sketch18)
sketch18.AttachmentSupport = (doc.getObject("XY_Plane017"), [""])
sketch18.MapMode = "FlatFace"
sketch18.addGeometry([
    Part.LineSegment(V(0, 1350, 0), V(0, 1300, 0)),
    Part.LineSegment(V(0, 1300, 0), V(1960, 1300, 0)),
    Part.LineSegment(V(1960, 1300, 0), V(1960, 1350, 0)),
    Part.LineSegment(V(1960, 1350, 0), V(0, 1350, 0)),
], False)
sketch18.addConstraint([
    Sketcher.Constraint("Coincident", 0, 2, 1, 1),
    Sketcher.Constraint("Coincident", 1, 2, 2, 1),
    Sketcher.Constraint("Coincident", 2, 2, 3, 1),
    Sketcher.Constraint("Coincident", 3, 2, 0, 1),
    Sketcher.Constraint("Vertical", 0),
    Sketcher.Constraint("Horizontal", 1),
    Sketcher.Constraint("Vertical", 2),
    Sketcher.Constraint("Horizontal", 3),
    Sketcher.Constraint("PointOnObject", 0, 2, -2),
    Sketcher.Constraint("DistanceX", 1, 1, 1, 2, 1960.0),
    Sketcher.Constraint("DistanceY", 0, 2, 0, 1, 50.0),
    Sketcher.Constraint("DistanceY", -1, 1, 0, 2, 1300.0),
])
pad18 = doc.addObject("PartDesign::Pad", "Pad017")
body18.addObject(pad18)
pad18.Profile = sketch18
pad18.Length = 25
pad18.Reversed = True

doc.recompute()
